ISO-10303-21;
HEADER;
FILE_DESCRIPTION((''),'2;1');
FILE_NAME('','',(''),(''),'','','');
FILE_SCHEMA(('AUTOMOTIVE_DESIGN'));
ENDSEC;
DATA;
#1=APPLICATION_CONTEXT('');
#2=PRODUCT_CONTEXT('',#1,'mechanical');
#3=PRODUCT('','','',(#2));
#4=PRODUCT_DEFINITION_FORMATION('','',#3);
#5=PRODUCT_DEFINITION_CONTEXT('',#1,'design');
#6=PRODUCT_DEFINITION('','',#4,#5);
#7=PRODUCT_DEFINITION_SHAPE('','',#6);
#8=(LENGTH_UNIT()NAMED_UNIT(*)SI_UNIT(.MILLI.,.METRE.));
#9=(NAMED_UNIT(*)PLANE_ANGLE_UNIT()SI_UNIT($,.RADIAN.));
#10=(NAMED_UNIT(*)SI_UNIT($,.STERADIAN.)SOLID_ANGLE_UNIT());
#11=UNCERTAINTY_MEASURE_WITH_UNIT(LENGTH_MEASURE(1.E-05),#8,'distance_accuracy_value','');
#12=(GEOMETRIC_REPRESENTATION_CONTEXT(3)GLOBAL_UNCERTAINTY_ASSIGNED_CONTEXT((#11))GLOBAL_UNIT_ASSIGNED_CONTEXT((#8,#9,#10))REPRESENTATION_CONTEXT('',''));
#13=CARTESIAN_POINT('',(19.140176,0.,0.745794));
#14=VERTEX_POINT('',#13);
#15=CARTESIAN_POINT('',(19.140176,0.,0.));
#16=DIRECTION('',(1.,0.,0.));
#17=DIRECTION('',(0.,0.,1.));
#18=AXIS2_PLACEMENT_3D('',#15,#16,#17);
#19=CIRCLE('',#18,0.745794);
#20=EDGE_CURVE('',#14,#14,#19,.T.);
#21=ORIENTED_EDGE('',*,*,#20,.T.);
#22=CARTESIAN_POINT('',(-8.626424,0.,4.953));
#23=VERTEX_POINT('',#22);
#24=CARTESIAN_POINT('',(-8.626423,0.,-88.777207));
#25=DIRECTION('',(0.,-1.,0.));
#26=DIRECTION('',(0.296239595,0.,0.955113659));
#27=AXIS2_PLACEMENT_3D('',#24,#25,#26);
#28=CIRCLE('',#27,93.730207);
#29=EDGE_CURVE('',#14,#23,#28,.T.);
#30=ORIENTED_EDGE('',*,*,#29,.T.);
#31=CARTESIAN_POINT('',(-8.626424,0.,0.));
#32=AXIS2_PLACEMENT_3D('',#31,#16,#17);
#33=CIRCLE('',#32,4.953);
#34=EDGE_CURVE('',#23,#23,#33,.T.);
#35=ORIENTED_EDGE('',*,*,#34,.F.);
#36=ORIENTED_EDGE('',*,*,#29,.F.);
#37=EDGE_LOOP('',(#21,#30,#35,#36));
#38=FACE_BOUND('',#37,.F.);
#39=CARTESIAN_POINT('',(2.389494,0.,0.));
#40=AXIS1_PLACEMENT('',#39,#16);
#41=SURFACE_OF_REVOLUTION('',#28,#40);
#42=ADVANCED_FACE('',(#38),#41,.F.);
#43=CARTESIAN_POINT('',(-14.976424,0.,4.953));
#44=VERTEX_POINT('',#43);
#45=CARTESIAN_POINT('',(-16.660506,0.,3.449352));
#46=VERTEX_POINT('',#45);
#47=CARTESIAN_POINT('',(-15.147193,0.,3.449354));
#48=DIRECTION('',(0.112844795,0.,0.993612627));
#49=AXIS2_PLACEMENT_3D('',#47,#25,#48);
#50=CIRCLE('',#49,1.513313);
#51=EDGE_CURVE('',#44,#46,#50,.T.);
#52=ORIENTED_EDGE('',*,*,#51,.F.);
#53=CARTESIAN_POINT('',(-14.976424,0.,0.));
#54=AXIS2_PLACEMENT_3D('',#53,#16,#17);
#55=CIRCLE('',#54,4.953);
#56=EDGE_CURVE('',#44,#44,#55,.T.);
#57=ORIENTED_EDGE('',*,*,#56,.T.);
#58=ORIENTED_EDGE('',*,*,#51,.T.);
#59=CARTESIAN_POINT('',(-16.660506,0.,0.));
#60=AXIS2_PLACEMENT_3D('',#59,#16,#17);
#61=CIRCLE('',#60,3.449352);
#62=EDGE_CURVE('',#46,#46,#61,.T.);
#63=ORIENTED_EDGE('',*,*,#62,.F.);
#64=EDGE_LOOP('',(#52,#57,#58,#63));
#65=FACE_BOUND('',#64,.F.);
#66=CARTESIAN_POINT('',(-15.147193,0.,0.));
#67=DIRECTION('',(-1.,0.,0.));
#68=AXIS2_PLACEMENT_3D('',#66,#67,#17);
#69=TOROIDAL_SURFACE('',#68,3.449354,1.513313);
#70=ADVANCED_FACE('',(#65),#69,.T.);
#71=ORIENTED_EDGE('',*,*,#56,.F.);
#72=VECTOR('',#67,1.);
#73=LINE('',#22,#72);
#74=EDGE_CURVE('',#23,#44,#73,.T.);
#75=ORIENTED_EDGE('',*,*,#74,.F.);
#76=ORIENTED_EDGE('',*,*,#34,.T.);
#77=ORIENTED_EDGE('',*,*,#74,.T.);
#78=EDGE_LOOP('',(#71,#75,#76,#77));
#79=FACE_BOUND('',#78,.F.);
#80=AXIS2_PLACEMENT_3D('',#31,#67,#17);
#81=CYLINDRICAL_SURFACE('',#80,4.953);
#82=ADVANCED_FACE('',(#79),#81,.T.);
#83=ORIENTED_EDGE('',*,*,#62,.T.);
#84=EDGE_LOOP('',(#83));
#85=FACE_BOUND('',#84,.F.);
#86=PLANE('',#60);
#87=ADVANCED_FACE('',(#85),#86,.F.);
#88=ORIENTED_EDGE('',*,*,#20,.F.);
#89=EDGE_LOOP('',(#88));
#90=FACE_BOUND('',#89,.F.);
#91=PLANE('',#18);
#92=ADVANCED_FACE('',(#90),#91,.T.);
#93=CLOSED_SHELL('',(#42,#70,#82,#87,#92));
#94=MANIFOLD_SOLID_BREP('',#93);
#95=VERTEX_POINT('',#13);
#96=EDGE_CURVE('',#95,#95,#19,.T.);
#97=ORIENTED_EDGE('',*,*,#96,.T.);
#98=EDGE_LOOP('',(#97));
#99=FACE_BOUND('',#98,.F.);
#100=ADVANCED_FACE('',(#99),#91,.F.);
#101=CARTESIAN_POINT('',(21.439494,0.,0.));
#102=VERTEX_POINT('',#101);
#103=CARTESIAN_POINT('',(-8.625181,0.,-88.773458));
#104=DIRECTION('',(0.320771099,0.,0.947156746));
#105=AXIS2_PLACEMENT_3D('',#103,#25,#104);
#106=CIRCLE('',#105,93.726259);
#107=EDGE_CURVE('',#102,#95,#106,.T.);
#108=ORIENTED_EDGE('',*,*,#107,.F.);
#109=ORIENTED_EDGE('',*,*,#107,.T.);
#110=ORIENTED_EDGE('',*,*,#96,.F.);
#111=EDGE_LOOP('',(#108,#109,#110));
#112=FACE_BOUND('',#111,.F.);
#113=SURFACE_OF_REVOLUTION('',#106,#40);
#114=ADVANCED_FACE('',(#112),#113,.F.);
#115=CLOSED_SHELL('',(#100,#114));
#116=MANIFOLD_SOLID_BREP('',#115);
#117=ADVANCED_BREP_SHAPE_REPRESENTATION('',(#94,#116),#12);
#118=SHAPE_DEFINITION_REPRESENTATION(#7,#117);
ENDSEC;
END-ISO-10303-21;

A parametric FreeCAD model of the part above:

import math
import FreeCAD as App
import Part
import Sketcher

V = App.Vector
Q = App.Units.Quantity

doc = App.newDocument("Part")
body = doc.addObject("PartDesign::Body", "Body")

# Sketch on XZ plane
sketch1 = body.newObject("Sketcher::SketchObject", "Sketch")
sketch1.AttachmentSupport = (doc.getObject("XZ_Plane"), [""])
sketch1.MapMode = "FlatFace"
sketch1.addGeometry(Part.LineSegment(V(-16.7, 3.4, 0), V(-16.7, 0, 0)), False)
sketch1.addGeometry(Part.LineSegment(V(-16.7, 0, 0), V(19.1, 0, 0)), False)
sketch1.addGeometry(Part.LineSegment(V(19.1, 0, 0), V(19.1, 0.7, 0)), False)
sketch1.addGeometry(Part.ArcOfCircle(Part.Circle(V(-8.6, -88.8, 0), V(0, 0, 1), 93.7), math.radians(72.77), math.radians(90)), False)
sketch1.addGeometry(Part.LineSegment(V(-8.6, 5, 0), V(-15, 5, 0)), False)
sketch1.addGeometry(Part.ArcOfCircle(Part.Circle(V(-15.1, 3.4, 0), V(0, 0, 1), 1.5), math.radians(84), math.radians(180)), False)
sketch1.addConstraint(Sketcher.Constraint("Coincident", 0, 2, 1, 1))
sketch1.addConstraint(Sketcher.Constraint("Coincident", 1, 2, 2, 1))
sketch1.addConstraint(Sketcher.Constraint("Coincident", 2, 2, 3, 1))
sketch1.addConstraint(Sketcher.Constraint("Tangent", 3, 2, 4, 1))
sketch1.addConstraint(Sketcher.Constraint("Coincident", 4, 2, 5, 1))
sketch1.addConstraint(Sketcher.Constraint("Tangent", 5, 2, 0, 1))
sketch1.addConstraint(Sketcher.Constraint("Vertical", 0))
sketch1.addConstraint(Sketcher.Constraint("Horizontal", 1))
sketch1.addConstraint(Sketcher.Constraint("Vertical", 2))
sketch1.addConstraint(Sketcher.Constraint("Horizontal", 4))
sketch1.addConstraint(Sketcher.Constraint("PointOnObject", 0, 2, -1))
sketch1.addConstraint(Sketcher.Constraint("DistanceX", 4, 2, 4, 1, Q("0.25 in")))
sketch1.addConstraint(Sketcher.Constraint("DistanceY", -1, 1, 3, 2, Q("0.195 in")))
sketch1.addConstraint(Sketcher.Constraint("Radius", 3, 93.730207))
sketch1.addConstraint(Sketcher.Constraint("Radius", 5, 1.513313))
sketch1.addConstraint(Sketcher.Constraint("DistanceX", 3, 3, 1, 2, 27.766599))
sketch1.addConstraint(Sketcher.Constraint("DistanceX", 1, 1, 1, 2, 35.800682))
sketch1.addConstraint(Sketcher.Constraint("DistanceX", 3, 3, -1, 1, 8.626423))
revolution = body.newObject("PartDesign::Revolution", "Revolution")
revolution.Profile = sketch1
revolution.ReferenceAxis = (sketch1, ["H_Axis"])
revolution.Angle = 360
body2 = doc.addObject("PartDesign::Body", "Body001")

# Sketch on XZ plane
sketch2 = body2.newObject("Sketcher::SketchObject", "Sketch001")
sketch2.AttachmentSupport = (doc.getObject("XZ_Plane001"), [""])
sketch2.MapMode = "FlatFace"
sketch2.addGeometry(Part.LineSegment(V(19.1, 0.7, 0), V(19.1, 0, 0)), False)
sketch2.addGeometry(Part.LineSegment(V(19.1, 0, 0), V(21.4, 0, 0)), False)
sketch2.addGeometry(Part.ArcOfCircle(Part.Circle(V(-8.6, -88.8, 0), V(0, 0, 1), 93.7), math.radians(71.29), math.radians(72.77)), False)
sketch2.addConstraint(Sketcher.Constraint("Coincident", 0, 2, 1, 1))
sketch2.addConstraint(Sketcher.Constraint("Coincident", 1, 2, 2, 1))
sketch2.addConstraint(Sketcher.Constraint("Coincident", 2, 2, 0, 1))
sketch2.addConstraint(Sketcher.Constraint("Vertical", 0))
sketch2.addConstraint(Sketcher.Constraint("Horizontal", 1))
sketch2.addConstraint(Sketcher.Constraint("PointOnObject", 0, 2, -1))
sketch2.addConstraint(Sketcher.Constraint("Radius", 2, 93.726259))
sketch2.addConstraint(Sketcher.Constraint("DistanceX", 1, 1, 1, 2, 2.299318))
sketch2.addConstraint(Sketcher.Constraint("DistanceY", 0, 2, 0, 1, 0.745794))
sketch2.addConstraint(Sketcher.Constraint("DistanceX", 2, 3, -1, 1, 8.625181))
revolution2 = body2.newObject("PartDesign::Revolution", "Revolution001")
revolution2.Profile = sketch2
revolution2.ReferenceAxis = (sketch2, ["H_Axis"])
revolution2.Angle = 360

doc.recompute()
